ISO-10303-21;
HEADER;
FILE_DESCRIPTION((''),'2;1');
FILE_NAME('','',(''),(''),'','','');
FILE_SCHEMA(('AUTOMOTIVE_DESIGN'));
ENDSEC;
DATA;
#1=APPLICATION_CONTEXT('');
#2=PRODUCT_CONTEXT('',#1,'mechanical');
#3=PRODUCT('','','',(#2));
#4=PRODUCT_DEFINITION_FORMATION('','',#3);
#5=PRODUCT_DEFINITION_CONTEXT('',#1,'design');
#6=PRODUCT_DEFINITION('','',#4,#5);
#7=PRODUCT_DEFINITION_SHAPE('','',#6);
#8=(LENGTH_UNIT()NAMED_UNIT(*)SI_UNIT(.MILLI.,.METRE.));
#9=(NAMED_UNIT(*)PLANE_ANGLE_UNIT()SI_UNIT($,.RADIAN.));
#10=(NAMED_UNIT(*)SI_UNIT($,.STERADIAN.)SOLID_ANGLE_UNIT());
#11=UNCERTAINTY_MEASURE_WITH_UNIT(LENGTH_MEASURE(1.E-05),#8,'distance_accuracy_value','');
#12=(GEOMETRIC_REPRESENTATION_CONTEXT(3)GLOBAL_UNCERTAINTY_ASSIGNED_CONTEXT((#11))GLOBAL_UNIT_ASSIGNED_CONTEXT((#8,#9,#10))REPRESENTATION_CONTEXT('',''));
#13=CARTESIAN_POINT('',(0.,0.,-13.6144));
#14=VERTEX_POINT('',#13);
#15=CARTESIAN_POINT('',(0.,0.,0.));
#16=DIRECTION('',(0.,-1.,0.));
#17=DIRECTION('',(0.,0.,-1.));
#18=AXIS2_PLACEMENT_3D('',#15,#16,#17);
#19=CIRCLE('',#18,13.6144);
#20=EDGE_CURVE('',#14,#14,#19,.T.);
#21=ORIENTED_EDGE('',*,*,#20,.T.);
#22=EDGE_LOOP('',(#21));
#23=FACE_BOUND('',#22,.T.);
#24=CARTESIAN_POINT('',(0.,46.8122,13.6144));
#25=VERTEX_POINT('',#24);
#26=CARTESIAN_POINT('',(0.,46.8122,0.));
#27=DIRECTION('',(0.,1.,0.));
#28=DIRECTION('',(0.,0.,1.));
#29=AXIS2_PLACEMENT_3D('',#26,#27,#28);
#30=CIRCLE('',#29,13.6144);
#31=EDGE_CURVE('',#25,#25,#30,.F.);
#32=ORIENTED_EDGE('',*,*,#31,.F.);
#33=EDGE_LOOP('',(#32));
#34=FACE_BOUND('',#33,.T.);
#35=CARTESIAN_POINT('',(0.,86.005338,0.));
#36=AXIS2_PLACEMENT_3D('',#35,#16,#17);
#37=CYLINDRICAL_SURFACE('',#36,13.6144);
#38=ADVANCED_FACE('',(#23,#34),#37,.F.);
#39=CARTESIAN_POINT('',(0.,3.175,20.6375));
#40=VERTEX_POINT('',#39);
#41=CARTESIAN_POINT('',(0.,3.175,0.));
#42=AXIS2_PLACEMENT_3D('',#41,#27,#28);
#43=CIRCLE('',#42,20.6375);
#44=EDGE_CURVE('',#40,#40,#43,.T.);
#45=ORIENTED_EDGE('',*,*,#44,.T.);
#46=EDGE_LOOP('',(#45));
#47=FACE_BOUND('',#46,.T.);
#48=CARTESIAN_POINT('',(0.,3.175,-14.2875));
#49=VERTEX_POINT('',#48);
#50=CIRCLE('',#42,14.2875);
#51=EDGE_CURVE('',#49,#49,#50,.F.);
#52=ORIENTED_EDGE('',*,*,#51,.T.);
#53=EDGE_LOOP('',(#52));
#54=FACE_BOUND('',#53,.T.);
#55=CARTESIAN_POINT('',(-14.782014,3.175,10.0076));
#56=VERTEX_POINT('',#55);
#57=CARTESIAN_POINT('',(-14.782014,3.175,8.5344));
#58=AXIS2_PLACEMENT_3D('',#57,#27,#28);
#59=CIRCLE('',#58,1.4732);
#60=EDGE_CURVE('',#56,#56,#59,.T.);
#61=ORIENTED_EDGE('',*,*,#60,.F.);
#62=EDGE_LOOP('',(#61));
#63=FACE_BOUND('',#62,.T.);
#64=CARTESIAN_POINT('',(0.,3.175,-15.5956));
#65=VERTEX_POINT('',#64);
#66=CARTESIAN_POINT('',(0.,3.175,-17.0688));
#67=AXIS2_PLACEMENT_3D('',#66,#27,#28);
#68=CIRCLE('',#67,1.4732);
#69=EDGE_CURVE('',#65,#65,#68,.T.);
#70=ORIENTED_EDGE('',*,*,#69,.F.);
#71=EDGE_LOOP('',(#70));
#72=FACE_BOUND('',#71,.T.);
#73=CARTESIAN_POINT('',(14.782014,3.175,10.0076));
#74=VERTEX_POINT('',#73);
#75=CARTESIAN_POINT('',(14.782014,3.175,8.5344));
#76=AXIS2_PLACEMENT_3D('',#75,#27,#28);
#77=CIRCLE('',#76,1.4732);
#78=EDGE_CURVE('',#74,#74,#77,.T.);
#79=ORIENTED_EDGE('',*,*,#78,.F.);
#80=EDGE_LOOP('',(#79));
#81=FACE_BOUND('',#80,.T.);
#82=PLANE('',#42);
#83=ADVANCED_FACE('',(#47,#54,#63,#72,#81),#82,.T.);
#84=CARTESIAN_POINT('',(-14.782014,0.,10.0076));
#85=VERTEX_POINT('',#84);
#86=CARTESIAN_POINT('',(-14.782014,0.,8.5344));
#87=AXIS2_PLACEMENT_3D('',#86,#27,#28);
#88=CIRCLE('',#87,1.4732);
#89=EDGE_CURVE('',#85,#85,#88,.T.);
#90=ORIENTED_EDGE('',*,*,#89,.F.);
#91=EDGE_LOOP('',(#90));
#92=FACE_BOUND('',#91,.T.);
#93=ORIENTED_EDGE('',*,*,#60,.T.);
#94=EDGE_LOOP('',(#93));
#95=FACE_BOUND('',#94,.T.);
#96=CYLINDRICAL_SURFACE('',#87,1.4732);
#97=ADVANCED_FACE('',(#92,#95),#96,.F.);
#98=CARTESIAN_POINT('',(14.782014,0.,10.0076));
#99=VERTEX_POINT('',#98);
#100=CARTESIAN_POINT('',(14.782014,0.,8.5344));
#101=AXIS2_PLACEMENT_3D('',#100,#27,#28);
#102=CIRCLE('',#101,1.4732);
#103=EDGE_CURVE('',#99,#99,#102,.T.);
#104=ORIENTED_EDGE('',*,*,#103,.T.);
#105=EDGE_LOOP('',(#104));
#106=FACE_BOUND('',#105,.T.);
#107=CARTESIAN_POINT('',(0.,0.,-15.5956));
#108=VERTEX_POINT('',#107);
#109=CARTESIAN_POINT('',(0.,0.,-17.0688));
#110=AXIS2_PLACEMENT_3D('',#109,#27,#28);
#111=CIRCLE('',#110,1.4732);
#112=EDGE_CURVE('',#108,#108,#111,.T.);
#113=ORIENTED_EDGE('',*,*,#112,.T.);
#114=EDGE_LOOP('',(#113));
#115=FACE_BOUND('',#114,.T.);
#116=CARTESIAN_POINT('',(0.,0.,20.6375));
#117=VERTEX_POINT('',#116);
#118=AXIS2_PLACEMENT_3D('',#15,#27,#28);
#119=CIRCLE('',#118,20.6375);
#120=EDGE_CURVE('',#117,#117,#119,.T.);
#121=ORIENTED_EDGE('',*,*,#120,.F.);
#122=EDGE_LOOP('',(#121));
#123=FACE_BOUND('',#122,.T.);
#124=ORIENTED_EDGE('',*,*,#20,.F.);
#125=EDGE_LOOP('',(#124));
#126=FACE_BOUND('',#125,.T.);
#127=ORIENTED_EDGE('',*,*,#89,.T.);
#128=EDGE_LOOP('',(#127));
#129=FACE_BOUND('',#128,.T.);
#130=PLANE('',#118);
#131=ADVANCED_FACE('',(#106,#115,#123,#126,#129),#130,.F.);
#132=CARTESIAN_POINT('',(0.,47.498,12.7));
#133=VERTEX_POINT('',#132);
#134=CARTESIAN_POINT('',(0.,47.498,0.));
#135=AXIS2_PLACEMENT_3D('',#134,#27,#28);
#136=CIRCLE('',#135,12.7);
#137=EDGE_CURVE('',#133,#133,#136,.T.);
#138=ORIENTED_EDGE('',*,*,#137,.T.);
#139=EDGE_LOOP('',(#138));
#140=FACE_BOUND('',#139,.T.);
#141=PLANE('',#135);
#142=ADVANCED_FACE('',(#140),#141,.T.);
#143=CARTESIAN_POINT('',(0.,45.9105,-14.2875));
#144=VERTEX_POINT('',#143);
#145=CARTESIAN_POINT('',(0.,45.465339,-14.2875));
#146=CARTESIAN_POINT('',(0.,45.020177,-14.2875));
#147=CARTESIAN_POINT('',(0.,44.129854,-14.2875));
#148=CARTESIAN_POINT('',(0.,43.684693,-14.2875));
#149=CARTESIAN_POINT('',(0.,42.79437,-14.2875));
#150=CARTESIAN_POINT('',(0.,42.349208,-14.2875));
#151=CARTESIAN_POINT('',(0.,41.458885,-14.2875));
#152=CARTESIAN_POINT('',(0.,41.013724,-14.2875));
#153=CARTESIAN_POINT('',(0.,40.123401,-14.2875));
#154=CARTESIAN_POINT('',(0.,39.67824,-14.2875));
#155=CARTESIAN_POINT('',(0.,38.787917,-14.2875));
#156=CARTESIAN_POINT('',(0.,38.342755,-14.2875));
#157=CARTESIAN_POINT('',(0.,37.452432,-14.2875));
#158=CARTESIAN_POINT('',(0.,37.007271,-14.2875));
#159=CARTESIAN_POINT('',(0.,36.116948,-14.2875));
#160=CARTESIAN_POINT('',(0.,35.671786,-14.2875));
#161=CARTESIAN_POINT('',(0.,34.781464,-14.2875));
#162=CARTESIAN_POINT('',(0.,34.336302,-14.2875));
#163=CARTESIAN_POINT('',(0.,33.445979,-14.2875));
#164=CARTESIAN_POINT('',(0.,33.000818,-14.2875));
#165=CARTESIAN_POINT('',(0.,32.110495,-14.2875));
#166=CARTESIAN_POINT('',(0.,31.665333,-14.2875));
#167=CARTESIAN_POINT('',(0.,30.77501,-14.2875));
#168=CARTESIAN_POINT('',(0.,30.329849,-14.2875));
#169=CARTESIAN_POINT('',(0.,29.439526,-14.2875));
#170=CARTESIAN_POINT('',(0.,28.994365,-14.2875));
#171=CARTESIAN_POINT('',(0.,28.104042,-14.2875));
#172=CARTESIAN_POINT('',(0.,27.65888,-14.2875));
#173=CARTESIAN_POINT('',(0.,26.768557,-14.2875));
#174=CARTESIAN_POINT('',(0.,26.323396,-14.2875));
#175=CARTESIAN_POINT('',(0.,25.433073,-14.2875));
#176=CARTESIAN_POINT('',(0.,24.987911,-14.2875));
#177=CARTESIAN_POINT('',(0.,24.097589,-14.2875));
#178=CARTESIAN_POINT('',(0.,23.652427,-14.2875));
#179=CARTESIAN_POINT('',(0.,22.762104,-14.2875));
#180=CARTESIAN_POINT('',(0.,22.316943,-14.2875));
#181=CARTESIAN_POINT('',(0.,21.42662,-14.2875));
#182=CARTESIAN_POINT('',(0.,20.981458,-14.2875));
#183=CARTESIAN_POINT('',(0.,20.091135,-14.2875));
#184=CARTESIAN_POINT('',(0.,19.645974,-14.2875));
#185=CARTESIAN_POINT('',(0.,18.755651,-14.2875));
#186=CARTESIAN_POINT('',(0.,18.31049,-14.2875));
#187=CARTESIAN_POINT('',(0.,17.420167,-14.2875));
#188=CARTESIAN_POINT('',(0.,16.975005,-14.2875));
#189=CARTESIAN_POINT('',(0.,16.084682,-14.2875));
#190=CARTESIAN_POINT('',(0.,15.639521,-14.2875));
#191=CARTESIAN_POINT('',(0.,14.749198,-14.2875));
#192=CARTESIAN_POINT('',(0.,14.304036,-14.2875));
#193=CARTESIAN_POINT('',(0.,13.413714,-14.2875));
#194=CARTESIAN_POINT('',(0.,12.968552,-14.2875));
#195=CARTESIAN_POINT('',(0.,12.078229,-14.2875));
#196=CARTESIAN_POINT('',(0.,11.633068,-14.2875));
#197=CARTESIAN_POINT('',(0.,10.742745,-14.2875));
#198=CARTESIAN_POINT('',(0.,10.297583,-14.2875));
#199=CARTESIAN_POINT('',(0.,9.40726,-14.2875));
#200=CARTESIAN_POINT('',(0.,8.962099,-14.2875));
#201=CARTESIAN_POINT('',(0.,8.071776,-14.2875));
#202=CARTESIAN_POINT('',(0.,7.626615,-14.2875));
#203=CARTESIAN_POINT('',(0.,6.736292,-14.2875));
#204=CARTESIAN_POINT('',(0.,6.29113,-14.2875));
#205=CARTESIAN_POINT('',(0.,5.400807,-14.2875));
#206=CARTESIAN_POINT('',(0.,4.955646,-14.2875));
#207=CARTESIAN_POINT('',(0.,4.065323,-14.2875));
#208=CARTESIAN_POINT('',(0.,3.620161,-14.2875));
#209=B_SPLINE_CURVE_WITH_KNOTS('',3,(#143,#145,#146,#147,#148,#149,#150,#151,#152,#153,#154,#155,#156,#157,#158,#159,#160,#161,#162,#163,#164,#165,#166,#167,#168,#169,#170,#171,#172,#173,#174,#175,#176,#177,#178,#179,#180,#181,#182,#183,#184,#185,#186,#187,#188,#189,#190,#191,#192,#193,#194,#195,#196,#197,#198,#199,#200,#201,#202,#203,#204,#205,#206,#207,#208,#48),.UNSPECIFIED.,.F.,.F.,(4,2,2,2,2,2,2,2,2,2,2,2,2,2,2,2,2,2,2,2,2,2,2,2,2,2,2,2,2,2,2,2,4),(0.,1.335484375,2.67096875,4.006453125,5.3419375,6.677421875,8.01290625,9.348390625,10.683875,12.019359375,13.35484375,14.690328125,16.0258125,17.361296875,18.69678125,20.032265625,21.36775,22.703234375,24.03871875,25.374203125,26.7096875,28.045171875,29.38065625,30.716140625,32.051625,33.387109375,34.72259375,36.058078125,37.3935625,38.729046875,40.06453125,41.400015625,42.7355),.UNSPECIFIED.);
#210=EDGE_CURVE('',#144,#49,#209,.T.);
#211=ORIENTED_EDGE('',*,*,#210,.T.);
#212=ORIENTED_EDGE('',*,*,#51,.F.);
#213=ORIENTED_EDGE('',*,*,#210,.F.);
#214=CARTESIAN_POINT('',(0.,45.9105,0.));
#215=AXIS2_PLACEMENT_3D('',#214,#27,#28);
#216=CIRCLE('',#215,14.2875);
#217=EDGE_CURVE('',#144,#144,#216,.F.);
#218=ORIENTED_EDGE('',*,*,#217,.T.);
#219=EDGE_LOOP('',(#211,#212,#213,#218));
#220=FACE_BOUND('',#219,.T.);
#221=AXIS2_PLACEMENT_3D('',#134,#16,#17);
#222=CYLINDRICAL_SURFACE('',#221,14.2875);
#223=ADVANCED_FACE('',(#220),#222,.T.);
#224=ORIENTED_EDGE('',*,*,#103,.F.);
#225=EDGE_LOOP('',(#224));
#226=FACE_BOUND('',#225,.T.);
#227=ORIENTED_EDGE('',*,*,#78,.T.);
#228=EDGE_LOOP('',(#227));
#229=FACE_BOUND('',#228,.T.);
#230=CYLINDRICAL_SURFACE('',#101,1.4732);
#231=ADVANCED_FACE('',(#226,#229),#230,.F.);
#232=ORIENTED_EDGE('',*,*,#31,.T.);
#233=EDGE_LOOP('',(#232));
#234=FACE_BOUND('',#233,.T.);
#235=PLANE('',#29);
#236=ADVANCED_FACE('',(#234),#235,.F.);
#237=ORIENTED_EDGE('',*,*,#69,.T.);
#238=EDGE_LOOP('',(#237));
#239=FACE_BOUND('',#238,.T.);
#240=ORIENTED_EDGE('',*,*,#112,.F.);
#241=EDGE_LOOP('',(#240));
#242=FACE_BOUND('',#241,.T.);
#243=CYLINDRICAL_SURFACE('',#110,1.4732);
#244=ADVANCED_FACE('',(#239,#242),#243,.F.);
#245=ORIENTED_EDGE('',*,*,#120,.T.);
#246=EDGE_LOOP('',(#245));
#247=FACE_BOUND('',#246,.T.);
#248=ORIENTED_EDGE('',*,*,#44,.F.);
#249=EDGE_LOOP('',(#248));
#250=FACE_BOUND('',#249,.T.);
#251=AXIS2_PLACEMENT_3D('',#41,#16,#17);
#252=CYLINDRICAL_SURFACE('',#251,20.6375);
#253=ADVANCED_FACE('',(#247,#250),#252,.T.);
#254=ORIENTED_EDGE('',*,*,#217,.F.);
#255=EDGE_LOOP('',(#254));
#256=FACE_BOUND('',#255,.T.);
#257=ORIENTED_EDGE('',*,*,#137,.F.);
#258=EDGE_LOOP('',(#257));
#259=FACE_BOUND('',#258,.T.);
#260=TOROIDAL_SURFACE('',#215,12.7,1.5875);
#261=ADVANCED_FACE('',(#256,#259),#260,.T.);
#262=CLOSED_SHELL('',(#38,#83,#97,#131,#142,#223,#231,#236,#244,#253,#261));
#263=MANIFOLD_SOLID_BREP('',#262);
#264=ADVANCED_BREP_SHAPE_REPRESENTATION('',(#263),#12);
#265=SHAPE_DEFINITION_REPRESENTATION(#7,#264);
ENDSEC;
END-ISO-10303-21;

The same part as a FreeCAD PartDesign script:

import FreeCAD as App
import Part
import Sketcher
Q = App.Units.Quantity


def edges_at(feature, points):
    """Names of the edges that pass closest to the given points."""
    edges = feature.Shape.Edges
    near = lambda p: min(range(len(edges)), key=lambda i: edges[i].distToShape(Part.Vertex(*p))[0])
    return sorted({f"Edge{near(p) + 1}" for p in points})

doc = App.newDocument("Part")
params = doc.addObject("Spreadsheet::Sheet", "Params")
for row, (alias, value) in enumerate([
    ("sketch1_diameter", "1.625 in"),
    ("pad1_length", "0.125 in"),
    ("sketch2_diameter", "1.125 in"),
    ("pad2_length", "1.87 in"),
    ("sketch3_diameter", "0.116 in"),
    ("sketch4_diameter", "1.072 in"),
    ("pocket2_length", "1.843 in"),
    ("fillet_radius", "0.0625 in"),
], start=1):
    params.set(f"A{row}", alias)
    params.set(f"B{row}", "=" + value)
    params.setAlias(f"B{row}", alias)

body = doc.addObject("PartDesign::Body", "Body")

# Sketch on XZ plane
sketch1 = doc.addObject("Sketcher::SketchObject", "Sketch")
body.addObject(sketch1)
sketch1.AttachmentSupport = (doc.XZ_Plane, [""])
sketch1.MapMode = "FlatFace"
sketch1.addGeometry(Part.Circle(App.Vector(0, 0, 0), App.Vector(0, 0, 1), 21), False)
sketch1.addConstraint([
    Sketcher.Constraint("Coincident", 0, 3, -1, 1),
    Sketcher.Constraint("Diameter", 0, Q("1.625 in")),
])
sketch1.setExpression("Constraints[1]", "Params.sketch1_diameter")
pad1 = doc.addObject("PartDesign::Pad", "Pad")
body.addObject(pad1)
pad1.Profile = sketch1
pad1.setExpression("Length", "Params.pad1_length")
pad1.Reversed = True

# Sketch on XZ plane
sketch2 = doc.addObject("Sketcher::SketchObject", "Sketch001")
body.addObject(sketch2)
sketch2.AttachmentSupport = (doc.XZ_Plane, [""])
sketch2.MapMode = "FlatFace"
sketch2.addGeometry(Part.Circle(App.Vector(0, 0, 0), App.Vector(0, 0, 1), 14), False)
sketch2.addConstraint([
    Sketcher.Constraint("Coincident", 0, 3, -1, 1),
    Sketcher.Constraint("Diameter", 0, Q("1.125 in")),
])
sketch2.setExpression("Constraints[1]", "Params.sketch2_diameter")
pad2 = doc.addObject("PartDesign::Pad", "Pad001")
body.addObject(pad2)
pad2.Profile = sketch2
pad2.setExpression("Length", "Params.pad2_length")
pad2.Reversed = True

# Sketch on XZ plane
sketch3 = doc.addObject("Sketcher::SketchObject", "Sketch002")
body.addObject(sketch3)
sketch3.AttachmentSupport = (doc.XZ_Plane, [""])
sketch3.MapMode = "FlatFace"
sketch3.AttachmentOffset = App.Placement(App.Vector(0, 0, -0.125 * 25.4), App.Rotation())
sketch3.addGeometry([
    Part.Circle(App.Vector(0, -17.1, 0), App.Vector(0, 0, 1), 1.5),
    Part.Circle(App.Vector(14.8, 8.5, 0), App.Vector(0, 0, 1), 1.5),
    Part.Circle(App.Vector(-14.8, 8.5, 0), App.Vector(0, 0, 1), 1.5),
], False)
sketch3.addConstraint([
    Sketcher.Constraint("Equal", 0, 1),
    Sketcher.Constraint("Equal", 1, 2),
    Sketcher.Constraint("Symmetric", 1, 3, 2, 3, -2),
    Sketcher.Constraint("PointOnObject", 0, 3, -2),
    Sketcher.Constraint("Diameter", 0, Q("0.116 in")),
    Sketcher.Constraint("DistanceY", 0, 3, -1, 1, Q("0.672 in")),
    Sketcher.Constraint("DistanceY", -1, 1, 1, 3, Q("0.336 in")),
    Sketcher.Constraint("DistanceX", 2, 3, 1, 3, 29.564029),
])
sketch3.setExpression("Constraints[4]", "Params.sketch3_diameter")
pocket1 = doc.addObject("PartDesign::Pocket", "Pocket")
body.addObject(pocket1)
pocket1.Profile = sketch3
pocket1.Type = "ThroughAll"
pocket1.Reversed = True

# Sketch on XZ plane
sketch4 = doc.addObject("Sketcher::SketchObject", "Sketch003")
body.addObject(sketch4)
sketch4.AttachmentSupport = (doc.XZ_Plane, [""])
sketch4.MapMode = "FlatFace"
sketch4.addGeometry(Part.Circle(App.Vector(0, 0, 0), App.Vector(0, 0, 1), 14), False)
sketch4.addConstraint([
    Sketcher.Constraint("Coincident", 0, 3, -1, 1),
    Sketcher.Constraint("Diameter", 0, Q("1.072 in")),
])
sketch4.setExpression("Constraints[1]", "Params.sketch4_diameter")
pocket2 = doc.addObject("PartDesign::Pocket", "Pocket001")
body.addObject(pocket2)
pocket2.Profile = sketch4
pocket2.setExpression("Length", "Params.pocket2_length")
doc.recompute()

fillet = doc.addObject("PartDesign::Fillet", "Fillet")
body.addObject(fillet)
fillet.Base = (pocket2, edges_at(pocket2, [(0, 47.498, 14.287)]))
fillet.setExpression("Radius", "Params.fillet_radius")

doc.recompute()
